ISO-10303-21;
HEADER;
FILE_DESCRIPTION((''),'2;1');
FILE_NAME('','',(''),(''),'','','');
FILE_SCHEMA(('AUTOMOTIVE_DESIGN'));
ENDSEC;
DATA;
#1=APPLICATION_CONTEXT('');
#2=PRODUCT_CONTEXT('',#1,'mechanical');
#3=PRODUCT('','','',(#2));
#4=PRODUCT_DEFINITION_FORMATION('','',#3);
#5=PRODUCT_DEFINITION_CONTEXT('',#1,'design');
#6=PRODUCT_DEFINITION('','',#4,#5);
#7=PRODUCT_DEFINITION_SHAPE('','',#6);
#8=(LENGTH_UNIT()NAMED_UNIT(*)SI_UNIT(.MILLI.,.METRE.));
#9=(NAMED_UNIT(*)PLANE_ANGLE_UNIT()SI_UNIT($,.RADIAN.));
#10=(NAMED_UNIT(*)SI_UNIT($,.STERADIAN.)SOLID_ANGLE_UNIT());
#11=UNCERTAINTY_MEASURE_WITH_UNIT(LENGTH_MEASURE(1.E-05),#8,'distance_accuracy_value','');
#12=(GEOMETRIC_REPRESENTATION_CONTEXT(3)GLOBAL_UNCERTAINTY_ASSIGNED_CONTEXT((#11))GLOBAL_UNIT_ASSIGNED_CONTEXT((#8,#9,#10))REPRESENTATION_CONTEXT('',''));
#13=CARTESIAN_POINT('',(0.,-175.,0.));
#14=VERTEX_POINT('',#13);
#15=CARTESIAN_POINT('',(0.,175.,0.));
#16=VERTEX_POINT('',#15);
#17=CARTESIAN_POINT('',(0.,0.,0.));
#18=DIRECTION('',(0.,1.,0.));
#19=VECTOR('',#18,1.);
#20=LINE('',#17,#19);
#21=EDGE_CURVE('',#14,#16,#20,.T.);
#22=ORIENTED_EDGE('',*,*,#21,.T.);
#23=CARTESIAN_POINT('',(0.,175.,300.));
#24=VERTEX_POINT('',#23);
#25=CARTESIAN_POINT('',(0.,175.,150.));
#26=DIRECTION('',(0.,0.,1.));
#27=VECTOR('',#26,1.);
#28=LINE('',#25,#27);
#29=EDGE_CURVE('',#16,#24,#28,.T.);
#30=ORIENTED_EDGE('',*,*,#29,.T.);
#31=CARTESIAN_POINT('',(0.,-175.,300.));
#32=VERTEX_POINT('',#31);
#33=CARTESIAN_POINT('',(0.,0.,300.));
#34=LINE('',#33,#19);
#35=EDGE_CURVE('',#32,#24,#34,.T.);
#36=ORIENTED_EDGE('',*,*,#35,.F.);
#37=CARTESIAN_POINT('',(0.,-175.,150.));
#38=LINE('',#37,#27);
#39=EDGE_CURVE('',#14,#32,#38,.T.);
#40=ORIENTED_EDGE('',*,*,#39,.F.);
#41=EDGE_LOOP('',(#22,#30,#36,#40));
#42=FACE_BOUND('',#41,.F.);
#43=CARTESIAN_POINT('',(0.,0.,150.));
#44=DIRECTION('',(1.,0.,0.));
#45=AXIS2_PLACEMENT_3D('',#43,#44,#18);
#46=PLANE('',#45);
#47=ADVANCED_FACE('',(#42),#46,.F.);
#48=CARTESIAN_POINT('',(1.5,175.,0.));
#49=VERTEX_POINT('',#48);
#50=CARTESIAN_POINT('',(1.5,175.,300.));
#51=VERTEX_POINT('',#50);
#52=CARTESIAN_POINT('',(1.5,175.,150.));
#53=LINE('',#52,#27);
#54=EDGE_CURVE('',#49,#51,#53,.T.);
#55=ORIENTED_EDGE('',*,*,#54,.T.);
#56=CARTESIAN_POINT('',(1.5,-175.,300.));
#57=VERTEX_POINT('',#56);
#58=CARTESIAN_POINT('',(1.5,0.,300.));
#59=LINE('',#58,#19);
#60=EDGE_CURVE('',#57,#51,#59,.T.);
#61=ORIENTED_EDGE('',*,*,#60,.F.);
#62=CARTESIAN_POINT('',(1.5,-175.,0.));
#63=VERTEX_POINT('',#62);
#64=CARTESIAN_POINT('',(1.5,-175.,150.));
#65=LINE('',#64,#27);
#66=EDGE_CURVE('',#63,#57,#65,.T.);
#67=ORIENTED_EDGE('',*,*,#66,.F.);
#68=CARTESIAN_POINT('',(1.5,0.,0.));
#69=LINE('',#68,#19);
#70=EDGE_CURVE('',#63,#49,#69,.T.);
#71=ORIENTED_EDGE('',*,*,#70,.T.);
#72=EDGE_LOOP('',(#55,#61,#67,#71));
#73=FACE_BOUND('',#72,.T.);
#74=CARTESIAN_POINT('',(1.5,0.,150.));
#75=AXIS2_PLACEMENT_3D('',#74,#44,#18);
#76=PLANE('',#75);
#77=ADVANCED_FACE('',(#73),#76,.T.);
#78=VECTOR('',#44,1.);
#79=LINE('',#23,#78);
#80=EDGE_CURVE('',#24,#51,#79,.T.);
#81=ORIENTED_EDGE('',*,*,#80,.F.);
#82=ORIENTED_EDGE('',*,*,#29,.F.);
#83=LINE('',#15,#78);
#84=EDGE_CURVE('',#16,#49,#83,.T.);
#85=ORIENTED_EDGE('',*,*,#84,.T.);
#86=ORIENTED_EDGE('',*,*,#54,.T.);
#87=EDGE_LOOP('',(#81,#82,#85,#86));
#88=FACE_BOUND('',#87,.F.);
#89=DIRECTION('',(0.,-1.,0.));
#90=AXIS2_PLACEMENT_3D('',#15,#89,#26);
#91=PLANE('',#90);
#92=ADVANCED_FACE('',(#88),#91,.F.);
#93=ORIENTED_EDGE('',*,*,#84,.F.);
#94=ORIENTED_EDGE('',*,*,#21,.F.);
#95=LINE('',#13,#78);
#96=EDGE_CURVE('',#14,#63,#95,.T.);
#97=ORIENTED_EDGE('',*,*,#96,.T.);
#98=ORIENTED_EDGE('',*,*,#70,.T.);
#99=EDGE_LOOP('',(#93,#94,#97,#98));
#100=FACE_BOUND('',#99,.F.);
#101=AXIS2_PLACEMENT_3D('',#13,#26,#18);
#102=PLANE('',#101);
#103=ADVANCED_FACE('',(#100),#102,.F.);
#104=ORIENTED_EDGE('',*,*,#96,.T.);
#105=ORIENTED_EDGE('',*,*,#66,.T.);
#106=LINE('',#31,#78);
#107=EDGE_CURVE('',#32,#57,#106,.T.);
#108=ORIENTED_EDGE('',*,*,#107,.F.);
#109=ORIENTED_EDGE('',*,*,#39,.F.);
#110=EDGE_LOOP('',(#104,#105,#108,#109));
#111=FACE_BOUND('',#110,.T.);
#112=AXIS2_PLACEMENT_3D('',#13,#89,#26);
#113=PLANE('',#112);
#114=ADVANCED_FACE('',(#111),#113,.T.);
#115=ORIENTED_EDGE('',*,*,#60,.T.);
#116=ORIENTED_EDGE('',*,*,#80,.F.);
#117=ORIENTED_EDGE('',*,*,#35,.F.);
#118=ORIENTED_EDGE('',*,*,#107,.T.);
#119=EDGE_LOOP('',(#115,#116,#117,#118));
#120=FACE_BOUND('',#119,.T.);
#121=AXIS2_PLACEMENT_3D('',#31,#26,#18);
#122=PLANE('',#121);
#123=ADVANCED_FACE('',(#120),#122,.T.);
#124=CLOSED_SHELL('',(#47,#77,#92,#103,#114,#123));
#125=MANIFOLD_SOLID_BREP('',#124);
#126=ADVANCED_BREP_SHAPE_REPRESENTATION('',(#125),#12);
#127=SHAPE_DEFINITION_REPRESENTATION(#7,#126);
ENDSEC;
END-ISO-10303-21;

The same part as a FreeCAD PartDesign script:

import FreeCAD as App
import Part
import Sketcher
from FreeCAD import Vector
Q = App.Units.Quantity


def add_polygon(sketch, points):
    """Adds a closed chain of lines whose ends are joined by coincident constraints."""
    first, n = sketch.GeometryCount, len(points)
    for a, b in zip(points, points[1:] + points[:1]):
        sketch.addGeometry(Part.LineSegment(App.Vector(*a, 0), App.Vector(*b, 0)), False)
    for i in range(n):
        sketch.addConstraint(Sketcher.Constraint("Coincident", first + i, 2, first + (i + 1) % n, 1))

doc = App.newDocument("Part")
body = doc.addObject("PartDesign::Body", "Body")

sketch1 = body.newObject("Sketcher::SketchObject", "Sketch")
sketch1.AttachmentSupport = (doc.getObject("YZ_Plane"), [""])
sketch1.MapMode = "FlatFace"
add_polygon(sketch1, [(-175, 300), (-175, 0), (175, 0), (175, 300)])
sketch1.addConstraint([
    Sketcher.Constraint("Vertical", 0),
    Sketcher.Constraint("Horizontal", 1),
    Sketcher.Constraint("Vertical", 2),
    Sketcher.Constraint("Horizontal", 3),
    Sketcher.Constraint("Symmetric", 0, 2, 1, 2, -1, 1),
    Sketcher.Constraint("DistanceX", 1, 1, 1, 2, Q("350 mm")),
    Sketcher.Constraint("DistanceY", 0, 2, 0, 1, Q("300 mm")),
])
pad1 = body.newObject("PartDesign::Pad", "Pad")
pad1.Profile = sketch1
pad1.Length = 1.5

doc.recompute()
